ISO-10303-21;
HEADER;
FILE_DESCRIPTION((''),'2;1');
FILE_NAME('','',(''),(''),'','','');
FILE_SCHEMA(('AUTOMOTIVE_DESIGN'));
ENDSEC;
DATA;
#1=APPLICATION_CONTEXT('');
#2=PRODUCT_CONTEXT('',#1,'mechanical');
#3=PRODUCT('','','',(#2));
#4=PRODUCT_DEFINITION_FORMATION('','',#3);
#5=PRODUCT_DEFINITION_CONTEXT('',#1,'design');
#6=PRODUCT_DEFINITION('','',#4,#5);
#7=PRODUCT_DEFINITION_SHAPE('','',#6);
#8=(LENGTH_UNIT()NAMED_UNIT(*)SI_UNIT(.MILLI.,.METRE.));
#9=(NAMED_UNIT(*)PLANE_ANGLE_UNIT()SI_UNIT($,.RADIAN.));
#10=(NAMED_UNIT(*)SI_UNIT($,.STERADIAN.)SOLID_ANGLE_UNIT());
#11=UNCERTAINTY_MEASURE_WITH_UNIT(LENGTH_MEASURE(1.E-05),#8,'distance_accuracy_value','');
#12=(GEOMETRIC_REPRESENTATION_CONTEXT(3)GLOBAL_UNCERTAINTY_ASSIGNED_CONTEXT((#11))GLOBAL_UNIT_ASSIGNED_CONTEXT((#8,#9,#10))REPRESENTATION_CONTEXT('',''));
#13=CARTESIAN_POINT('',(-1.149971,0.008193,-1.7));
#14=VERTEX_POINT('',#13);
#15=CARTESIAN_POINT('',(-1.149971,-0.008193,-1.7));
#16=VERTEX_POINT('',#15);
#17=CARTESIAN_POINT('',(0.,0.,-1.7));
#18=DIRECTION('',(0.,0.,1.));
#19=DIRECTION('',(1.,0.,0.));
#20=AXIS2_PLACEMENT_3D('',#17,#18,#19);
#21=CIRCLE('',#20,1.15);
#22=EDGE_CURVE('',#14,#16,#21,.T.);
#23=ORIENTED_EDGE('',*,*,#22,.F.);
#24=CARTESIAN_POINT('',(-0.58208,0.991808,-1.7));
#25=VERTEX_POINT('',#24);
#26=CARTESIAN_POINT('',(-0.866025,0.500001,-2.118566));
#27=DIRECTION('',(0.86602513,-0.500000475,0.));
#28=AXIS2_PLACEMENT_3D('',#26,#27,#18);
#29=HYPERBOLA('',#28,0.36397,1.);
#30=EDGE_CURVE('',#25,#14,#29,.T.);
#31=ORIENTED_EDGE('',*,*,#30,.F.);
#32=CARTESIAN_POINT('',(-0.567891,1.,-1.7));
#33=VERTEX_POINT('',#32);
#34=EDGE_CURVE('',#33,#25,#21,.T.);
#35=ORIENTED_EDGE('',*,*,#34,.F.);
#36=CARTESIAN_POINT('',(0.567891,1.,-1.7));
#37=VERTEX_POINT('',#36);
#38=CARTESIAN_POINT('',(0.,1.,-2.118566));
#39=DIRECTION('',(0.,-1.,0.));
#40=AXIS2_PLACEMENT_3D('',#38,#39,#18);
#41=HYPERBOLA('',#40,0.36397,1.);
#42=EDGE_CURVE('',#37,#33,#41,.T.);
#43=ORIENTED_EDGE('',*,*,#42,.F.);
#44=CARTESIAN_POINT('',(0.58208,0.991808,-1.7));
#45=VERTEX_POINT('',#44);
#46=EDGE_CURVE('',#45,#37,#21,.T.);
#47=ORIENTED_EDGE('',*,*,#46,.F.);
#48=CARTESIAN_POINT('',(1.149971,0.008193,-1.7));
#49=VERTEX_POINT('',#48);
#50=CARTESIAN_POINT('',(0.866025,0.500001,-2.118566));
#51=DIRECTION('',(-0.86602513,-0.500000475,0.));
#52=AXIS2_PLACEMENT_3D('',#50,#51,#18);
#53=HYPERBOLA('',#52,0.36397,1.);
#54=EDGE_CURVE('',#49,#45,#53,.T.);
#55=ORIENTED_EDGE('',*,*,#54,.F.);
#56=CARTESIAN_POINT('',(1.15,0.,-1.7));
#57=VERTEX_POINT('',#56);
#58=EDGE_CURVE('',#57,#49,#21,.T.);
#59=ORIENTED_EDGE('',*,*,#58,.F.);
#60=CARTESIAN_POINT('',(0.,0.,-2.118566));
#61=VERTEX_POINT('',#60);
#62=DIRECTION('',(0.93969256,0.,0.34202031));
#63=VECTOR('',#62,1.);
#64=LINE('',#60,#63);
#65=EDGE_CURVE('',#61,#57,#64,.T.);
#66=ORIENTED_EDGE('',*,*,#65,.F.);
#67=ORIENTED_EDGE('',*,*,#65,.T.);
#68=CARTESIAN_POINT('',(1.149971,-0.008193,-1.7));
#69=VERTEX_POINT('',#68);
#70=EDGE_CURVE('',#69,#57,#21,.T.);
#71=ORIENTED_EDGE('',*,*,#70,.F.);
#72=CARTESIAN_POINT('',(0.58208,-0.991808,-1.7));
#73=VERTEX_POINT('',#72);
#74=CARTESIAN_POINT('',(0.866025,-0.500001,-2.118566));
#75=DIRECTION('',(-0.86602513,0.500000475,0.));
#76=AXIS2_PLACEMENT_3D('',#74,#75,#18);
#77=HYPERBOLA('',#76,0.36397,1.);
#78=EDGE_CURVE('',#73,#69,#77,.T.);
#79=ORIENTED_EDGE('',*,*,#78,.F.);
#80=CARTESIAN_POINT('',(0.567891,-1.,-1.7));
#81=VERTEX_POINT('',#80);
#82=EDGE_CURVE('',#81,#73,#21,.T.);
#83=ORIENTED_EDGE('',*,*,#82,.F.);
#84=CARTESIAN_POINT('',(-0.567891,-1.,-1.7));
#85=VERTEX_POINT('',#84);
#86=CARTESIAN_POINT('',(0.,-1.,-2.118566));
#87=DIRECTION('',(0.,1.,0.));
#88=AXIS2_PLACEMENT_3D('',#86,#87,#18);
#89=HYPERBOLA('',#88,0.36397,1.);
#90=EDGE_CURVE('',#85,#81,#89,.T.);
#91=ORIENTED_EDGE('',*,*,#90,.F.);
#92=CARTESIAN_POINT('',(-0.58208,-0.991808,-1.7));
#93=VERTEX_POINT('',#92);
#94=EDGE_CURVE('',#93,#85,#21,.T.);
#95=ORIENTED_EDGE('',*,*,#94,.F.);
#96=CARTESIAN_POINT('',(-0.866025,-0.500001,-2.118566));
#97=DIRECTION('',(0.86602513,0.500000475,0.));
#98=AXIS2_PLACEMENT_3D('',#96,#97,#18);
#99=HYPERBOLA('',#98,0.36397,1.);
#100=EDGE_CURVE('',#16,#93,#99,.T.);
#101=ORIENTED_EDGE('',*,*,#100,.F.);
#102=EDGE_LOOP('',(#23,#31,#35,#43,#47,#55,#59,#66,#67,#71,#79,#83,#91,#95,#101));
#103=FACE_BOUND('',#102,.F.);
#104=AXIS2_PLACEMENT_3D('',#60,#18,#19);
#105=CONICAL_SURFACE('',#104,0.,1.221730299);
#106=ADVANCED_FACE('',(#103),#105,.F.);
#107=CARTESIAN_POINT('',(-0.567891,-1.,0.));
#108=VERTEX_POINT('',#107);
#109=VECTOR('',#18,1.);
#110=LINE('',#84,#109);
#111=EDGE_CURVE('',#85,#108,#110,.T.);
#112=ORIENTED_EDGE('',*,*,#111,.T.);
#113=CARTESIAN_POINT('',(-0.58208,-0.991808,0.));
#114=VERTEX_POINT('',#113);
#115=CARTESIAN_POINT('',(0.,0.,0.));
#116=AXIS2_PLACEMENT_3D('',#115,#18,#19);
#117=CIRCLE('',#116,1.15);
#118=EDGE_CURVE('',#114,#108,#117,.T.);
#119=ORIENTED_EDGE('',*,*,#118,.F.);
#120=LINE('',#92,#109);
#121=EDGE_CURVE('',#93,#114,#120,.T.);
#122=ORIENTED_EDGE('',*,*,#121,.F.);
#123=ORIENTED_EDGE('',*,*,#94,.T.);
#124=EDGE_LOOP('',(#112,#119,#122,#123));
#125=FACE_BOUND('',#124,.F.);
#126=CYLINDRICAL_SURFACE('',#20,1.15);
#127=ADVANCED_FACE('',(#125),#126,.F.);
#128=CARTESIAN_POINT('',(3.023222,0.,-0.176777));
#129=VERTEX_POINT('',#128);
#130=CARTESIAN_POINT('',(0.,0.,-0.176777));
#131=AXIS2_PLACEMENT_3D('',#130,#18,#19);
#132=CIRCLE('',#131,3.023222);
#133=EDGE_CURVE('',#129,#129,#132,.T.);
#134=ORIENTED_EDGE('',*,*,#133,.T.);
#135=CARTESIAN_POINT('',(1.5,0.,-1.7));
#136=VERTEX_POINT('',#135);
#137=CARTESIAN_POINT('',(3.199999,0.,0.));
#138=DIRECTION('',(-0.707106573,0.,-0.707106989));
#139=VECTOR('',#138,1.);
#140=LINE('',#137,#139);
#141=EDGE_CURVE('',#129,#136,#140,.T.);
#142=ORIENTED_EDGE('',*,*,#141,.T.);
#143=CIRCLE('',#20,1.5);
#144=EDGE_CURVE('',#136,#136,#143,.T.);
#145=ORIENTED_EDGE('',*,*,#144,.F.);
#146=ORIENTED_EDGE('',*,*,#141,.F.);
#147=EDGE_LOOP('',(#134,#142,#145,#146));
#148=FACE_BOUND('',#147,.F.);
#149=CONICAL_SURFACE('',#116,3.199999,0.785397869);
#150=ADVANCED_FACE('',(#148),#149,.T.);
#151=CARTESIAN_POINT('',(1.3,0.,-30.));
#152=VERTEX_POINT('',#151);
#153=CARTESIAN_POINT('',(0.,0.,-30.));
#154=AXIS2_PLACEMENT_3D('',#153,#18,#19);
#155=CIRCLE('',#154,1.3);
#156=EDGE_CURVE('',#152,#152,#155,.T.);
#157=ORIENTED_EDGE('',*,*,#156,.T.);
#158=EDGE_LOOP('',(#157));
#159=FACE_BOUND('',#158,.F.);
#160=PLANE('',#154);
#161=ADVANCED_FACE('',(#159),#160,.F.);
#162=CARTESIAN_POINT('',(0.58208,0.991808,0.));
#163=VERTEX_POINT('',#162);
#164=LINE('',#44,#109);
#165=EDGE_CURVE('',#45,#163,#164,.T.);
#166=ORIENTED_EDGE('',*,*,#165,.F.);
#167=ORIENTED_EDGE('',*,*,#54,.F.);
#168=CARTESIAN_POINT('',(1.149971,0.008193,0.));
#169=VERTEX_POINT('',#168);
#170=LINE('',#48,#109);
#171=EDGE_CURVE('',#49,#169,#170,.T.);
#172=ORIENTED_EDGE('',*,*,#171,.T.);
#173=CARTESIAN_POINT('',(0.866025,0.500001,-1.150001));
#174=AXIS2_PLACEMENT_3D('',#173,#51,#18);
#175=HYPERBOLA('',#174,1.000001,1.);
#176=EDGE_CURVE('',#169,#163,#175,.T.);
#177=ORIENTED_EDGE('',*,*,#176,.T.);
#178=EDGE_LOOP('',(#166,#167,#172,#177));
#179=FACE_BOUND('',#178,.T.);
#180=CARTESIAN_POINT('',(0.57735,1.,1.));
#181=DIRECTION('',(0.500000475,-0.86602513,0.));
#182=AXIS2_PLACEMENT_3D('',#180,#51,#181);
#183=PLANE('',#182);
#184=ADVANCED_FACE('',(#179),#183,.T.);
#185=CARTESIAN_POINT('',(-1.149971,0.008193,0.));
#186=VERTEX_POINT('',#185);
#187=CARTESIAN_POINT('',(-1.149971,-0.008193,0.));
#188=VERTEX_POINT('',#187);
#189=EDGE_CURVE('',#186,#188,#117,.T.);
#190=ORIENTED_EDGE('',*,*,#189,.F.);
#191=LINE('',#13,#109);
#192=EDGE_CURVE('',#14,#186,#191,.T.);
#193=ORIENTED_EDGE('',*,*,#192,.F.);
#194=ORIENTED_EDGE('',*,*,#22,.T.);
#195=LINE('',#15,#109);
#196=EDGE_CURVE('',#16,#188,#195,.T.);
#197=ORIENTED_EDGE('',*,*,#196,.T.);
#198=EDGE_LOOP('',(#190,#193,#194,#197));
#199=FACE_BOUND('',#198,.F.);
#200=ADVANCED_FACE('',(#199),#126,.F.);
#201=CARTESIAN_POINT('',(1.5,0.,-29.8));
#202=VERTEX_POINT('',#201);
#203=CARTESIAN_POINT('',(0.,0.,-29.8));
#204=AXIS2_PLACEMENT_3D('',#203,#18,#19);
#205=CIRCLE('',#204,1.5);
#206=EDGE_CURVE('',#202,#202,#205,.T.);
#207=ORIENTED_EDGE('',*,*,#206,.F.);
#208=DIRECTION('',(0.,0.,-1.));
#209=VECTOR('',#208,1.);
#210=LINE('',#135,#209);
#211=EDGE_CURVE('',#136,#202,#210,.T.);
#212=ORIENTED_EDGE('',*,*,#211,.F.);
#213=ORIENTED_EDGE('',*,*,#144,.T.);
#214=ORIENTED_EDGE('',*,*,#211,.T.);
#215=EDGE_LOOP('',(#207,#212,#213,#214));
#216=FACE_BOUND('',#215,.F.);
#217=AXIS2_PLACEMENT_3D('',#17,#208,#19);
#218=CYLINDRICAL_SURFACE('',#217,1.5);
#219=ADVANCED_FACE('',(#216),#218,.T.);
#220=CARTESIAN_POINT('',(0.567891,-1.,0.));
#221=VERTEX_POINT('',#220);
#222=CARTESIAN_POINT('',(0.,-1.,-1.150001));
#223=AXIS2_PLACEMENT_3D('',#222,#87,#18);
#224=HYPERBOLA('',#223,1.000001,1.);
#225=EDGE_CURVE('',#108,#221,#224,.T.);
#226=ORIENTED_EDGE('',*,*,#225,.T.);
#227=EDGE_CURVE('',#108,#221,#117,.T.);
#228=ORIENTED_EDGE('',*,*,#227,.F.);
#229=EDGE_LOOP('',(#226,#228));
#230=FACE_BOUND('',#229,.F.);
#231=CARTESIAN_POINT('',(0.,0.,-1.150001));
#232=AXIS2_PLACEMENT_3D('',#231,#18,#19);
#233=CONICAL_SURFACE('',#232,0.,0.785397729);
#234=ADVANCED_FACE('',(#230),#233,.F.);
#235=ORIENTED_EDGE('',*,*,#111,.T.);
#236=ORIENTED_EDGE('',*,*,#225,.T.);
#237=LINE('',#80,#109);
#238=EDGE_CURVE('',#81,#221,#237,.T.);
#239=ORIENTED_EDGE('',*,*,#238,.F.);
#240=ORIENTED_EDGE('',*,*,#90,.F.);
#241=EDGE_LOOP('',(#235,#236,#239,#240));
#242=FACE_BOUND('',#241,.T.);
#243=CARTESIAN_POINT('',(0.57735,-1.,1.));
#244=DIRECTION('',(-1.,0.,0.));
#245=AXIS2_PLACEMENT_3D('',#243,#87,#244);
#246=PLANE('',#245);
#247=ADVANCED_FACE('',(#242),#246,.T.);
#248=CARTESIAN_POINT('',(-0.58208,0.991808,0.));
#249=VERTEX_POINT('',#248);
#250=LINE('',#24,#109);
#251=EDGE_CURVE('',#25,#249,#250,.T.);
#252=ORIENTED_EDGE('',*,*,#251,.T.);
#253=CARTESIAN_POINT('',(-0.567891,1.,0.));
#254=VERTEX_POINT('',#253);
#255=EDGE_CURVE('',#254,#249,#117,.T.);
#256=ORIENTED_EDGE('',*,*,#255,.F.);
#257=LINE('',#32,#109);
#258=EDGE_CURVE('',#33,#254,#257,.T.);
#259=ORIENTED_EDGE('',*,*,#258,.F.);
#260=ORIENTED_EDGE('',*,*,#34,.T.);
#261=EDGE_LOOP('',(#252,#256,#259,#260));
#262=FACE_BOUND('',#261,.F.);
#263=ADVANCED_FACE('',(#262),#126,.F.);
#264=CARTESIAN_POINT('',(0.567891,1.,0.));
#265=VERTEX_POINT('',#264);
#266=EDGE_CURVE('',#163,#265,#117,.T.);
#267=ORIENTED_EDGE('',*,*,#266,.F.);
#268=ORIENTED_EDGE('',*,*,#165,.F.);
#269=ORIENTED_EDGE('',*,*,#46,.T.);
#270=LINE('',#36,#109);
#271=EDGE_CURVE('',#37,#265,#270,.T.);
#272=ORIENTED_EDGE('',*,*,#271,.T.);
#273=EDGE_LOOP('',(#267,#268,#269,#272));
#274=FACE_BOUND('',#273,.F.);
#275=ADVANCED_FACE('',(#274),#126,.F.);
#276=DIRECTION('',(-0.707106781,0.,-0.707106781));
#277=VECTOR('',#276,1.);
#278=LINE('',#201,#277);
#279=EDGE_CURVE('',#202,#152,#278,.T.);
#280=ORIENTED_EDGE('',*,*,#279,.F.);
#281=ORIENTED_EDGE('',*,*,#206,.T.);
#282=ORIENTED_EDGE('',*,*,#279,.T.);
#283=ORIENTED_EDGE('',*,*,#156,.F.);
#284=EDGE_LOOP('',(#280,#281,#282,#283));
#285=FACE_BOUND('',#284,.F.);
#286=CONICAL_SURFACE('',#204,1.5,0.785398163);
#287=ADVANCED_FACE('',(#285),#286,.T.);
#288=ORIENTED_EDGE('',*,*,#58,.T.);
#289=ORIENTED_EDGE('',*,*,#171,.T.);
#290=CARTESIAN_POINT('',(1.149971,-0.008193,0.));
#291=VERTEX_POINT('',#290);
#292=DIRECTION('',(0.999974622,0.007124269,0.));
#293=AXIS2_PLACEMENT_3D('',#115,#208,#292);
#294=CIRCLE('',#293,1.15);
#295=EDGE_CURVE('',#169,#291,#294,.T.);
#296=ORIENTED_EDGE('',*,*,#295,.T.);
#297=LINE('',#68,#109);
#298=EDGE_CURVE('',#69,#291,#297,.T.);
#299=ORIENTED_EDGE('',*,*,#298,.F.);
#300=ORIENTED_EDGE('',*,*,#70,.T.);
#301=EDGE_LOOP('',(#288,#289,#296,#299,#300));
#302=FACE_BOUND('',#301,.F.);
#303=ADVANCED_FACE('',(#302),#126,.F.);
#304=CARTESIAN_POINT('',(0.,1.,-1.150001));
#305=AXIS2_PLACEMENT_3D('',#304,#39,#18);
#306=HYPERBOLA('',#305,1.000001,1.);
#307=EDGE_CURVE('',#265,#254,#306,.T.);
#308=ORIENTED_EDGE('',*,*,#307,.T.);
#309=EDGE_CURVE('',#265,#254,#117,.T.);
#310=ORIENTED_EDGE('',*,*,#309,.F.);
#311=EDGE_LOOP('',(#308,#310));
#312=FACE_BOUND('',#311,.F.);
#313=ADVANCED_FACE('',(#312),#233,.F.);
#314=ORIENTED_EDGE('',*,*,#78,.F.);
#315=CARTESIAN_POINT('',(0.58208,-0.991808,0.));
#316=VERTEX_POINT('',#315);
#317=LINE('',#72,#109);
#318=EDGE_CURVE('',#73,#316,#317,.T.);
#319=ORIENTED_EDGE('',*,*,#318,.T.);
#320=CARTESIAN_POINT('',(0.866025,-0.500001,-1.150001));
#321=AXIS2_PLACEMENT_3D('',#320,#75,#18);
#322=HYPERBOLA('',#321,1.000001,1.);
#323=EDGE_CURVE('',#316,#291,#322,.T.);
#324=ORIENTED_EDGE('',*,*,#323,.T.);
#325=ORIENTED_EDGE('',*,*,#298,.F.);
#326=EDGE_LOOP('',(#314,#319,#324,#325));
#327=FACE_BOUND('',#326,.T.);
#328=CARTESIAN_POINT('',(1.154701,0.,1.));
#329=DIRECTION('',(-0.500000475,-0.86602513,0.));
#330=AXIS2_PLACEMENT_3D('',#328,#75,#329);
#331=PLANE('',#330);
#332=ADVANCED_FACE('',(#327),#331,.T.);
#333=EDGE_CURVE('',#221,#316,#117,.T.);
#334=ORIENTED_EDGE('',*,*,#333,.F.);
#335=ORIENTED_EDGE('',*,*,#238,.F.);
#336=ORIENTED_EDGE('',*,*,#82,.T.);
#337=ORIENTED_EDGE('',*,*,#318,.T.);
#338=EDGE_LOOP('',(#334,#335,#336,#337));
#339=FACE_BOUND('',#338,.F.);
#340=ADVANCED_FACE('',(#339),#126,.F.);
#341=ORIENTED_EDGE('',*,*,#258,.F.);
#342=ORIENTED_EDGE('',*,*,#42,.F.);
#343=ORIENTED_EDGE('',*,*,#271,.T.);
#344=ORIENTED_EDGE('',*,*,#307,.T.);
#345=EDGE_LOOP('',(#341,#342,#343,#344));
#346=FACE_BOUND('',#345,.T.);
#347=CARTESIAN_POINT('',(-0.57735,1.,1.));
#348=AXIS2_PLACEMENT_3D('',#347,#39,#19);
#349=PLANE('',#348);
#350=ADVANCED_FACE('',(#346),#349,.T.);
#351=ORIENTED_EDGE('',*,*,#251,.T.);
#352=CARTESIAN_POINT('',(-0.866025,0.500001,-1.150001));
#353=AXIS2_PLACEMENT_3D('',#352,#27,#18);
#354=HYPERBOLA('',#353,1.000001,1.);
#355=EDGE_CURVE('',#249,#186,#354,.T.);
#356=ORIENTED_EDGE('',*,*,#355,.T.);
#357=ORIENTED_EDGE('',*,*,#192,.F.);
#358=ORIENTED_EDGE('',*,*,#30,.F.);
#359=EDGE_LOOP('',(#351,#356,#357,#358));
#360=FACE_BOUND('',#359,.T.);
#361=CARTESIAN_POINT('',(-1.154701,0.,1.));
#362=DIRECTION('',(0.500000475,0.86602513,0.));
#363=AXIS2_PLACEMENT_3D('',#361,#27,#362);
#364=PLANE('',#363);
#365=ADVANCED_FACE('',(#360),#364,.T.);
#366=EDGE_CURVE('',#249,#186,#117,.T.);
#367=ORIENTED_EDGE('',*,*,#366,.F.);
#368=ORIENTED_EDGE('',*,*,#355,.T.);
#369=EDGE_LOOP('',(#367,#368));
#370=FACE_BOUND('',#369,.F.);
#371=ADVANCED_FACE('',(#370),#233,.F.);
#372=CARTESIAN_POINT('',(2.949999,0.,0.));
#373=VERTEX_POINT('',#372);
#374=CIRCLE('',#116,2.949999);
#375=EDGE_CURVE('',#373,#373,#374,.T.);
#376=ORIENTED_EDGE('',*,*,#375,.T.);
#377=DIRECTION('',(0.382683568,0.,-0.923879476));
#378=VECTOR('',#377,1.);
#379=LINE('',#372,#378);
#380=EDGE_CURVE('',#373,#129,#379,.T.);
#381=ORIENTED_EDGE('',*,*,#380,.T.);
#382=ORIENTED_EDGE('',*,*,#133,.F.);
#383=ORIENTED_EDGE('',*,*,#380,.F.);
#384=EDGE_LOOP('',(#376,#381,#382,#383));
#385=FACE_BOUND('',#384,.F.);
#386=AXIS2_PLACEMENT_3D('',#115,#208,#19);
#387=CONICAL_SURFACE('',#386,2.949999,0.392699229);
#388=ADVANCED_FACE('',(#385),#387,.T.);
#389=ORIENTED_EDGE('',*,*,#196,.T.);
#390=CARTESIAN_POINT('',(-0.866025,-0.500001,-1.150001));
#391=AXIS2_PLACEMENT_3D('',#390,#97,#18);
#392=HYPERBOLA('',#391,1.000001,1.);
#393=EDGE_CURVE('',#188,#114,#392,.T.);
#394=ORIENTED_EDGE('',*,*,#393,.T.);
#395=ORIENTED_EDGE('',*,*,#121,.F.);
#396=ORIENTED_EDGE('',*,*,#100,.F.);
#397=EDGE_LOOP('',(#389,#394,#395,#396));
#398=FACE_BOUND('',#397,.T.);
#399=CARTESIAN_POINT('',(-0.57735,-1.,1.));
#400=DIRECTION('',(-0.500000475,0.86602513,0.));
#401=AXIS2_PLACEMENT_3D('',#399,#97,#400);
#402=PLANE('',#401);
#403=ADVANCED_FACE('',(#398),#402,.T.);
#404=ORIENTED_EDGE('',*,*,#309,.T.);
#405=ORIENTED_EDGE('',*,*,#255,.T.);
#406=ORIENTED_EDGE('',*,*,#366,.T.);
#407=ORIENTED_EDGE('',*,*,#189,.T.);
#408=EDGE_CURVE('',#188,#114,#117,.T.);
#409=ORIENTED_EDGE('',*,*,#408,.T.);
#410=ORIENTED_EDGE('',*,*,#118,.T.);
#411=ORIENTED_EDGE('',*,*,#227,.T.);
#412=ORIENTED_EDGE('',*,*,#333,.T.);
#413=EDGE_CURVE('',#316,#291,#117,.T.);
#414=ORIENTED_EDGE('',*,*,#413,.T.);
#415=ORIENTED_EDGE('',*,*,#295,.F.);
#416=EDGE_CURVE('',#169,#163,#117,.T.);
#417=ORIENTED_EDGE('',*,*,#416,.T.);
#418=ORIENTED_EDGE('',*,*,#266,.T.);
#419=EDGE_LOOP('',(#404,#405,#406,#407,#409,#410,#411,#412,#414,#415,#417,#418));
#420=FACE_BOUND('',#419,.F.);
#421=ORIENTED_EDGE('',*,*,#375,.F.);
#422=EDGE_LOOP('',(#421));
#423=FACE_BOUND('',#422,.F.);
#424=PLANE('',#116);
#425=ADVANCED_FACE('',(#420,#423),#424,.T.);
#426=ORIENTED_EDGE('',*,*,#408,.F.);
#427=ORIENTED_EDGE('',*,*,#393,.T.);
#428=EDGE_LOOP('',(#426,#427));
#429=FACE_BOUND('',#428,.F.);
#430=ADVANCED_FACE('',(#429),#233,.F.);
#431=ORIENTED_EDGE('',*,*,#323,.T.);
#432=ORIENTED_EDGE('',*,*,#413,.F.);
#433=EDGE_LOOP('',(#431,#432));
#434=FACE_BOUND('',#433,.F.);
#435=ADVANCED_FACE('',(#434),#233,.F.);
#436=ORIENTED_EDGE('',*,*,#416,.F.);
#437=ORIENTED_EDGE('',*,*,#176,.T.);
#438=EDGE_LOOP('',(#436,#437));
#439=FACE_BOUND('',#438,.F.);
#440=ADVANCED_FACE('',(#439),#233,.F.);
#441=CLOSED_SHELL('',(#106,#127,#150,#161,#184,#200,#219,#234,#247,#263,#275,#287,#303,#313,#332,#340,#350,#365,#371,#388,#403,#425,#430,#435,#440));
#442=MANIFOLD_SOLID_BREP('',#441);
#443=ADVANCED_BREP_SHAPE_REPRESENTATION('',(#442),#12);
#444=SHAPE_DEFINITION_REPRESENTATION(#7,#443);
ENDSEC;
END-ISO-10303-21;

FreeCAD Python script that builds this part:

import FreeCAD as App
import Part
import Sketcher
from FreeCAD import Vector
Q = App.Units.Quantity


def edges_at(feature, points):
    """Names of the edges that pass closest to the given points."""
    edges = feature.Shape.Edges
    near = lambda p: min(range(len(edges)), key=lambda i: edges[i].distToShape(Part.Vertex(*p))[0])
    return sorted({f"Edge{near(p) + 1}" for p in points})


def add_polygon(sketch, points):
    """Adds a closed chain of lines whose ends are joined by coincident constraints."""
    first, n = sketch.GeometryCount, len(points)
    for a, b in zip(points, points[1:] + points[:1]):
        sketch.addGeometry(Part.LineSegment(App.Vector(*a, 0), App.Vector(*b, 0)), False)
    for i in range(n):
        sketch.addConstraint(Sketcher.Constraint("Coincident", first + i, 2, first + (i + 1) % n, 1))

doc = App.newDocument("Part")
body = doc.addObject("PartDesign::Body", "Body")

# Sketch on XZ plane
sketch1 = body.newObject("Sketcher::SketchObject", "Sketch")
sketch1.AttachmentSupport = (doc.getObject("XZ_Plane"), [""])
sketch1.MapMode = "FlatFace"
add_polygon(sketch1, [(0, -2.1), (1.1, -1.7), (1.1, 1), (0, 1)])  # lines 0-3
sketch1.addConstraint([
    Sketcher.Constraint("Vertical", 1),
    Sketcher.Constraint("Horizontal", 2),
    Sketcher.Constraint("Vertical", 3),
    Sketcher.Constraint("PointOnObject", 2, 2, -2),
    Sketcher.Constraint("Angle", 0, Q("20.00001 deg")),
    Sketcher.Constraint("DistanceY", 1, 1, 1, 2, Q("2.7 mm")),
    Sketcher.Constraint("DistanceY", -1, 1, 1, 2, Q("1 mm")),
    Sketcher.Constraint("DistanceX", 2, 2, 2, 1, Q("1.15 mm")),
])
revolution = body.newObject("PartDesign::Revolution", "Revolution")
revolution.Profile = sketch1
revolution.ReferenceAxis = (sketch1, ["V_Axis"])
revolution.Angle = 360

# Sketch on XY plane
sketch2 = body.newObject("Sketcher::SketchObject", "Sketch001")
sketch2.AttachmentSupport = (doc.getObject("XY_Plane"), [""])
sketch2.MapMode = "FlatFace"
sketch2.AttachmentOffset = App.Placement(Vector(0, 0, 1), App.Rotation())
sketch2.addGeometry(Part.Circle(Vector(0, 0, 0), Vector(0, 0, 1), 2.1), False)  # 0
add_polygon(sketch2, [(1.2, 0), (0.6, -1), (-0.6, -1), (-1.2, 0), (-0.6, 1), (0.6, 1)])  # lines 1-6
sketch2.addConstraint([
    Sketcher.Constraint("Horizontal", 2),
    Sketcher.Constraint("Horizontal", 5),
    Sketcher.Constraint("Coincident", 0, 3, -1, 1),
    Sketcher.Constraint("Symmetric", 1, 2, 4, 2, -1, 1),
    Sketcher.Constraint("Symmetric", 3, 2, 6, 2, -1, 1),
    Sketcher.Constraint("PointOnObject", 3, 2, -1),
    Sketcher.Constraint("Parallel", 3, 6),
    Sketcher.Constraint("Vertical", 2, 2, 4, 2),
    Sketcher.Constraint("Diameter", 0, Q("4.3 mm")),
    Sketcher.Constraint("DistanceY", 1, 2, -1, 1, Q("1 mm")),
    Sketcher.Constraint("DistanceX", 2, 2, 2, 1, Q("1.1547 mm")),
    Sketcher.Constraint("Distance", 1, Q("1.154701 mm")),
])
pocket1 = body.newObject("PartDesign::Pocket", "Pocket")
pocket1.Profile = sketch2
pocket1.Type = "ThroughAll"
body2 = doc.addObject("PartDesign::Body", "Body001")

# Sketch on XZ plane
sketch3 = body2.newObject("Sketcher::SketchObject", "Sketch002")
sketch3.AttachmentSupport = (doc.getObject("XZ_Plane001"), [""])
sketch3.MapMode = "FlatFace"
add_polygon(sketch3, [(3.2, 0), (1.1, 0), (0, -1.2), (0, -30), (1.5, -30), (1.5, -1.7)])  # lines 0-5
sketch3.addConstraint([
    Sketcher.Constraint("Horizontal", 0),
    Sketcher.Constraint("Vertical", 2),
    Sketcher.Constraint("Horizontal", 3),
    Sketcher.Constraint("Vertical", 4),
    Sketcher.Constraint("PointOnObject", 0, 2, -1),
    Sketcher.Constraint("PointOnObject", 1, 2, -2),
    Sketcher.Constraint("Parallel", 1, 5),
    Sketcher.Constraint("Angle", 5, Q("45.000017 deg")),
    Sketcher.Constraint("DistanceX", 3, 1, 3, 2, Q("1.5 mm")),
    Sketcher.Constraint("DistanceY", 4, 1, 4, 2, Q("28.3 mm")),
    Sketcher.Constraint("DistanceY", 2, 2, -1, 1, Q("30 mm")),
    Sketcher.Constraint("DistanceX", 0, 2, 0, 1, Q("2.049999 mm")),
])
revolution2 = body2.newObject("PartDesign::Revolution", "Revolution001")
revolution2.Profile = sketch3
revolution2.ReferenceAxis = (sketch3, ["V_Axis"])
revolution2.Angle = 360
doc.recompute()

boolean = body2.newObject("PartDesign::Boolean", "Boolean")
boolean.Type = "Cut"
boolean.addObjects([body])
doc.recompute()

chamfer = body2.newObject("PartDesign::Chamfer", "Chamfer")
chamfer.Base = (boolean, edges_at(boolean, [(-3.2, 0, 0)]))
chamfer.Size = 0.25
doc.recompute()

chamfer2 = body2.newObject("PartDesign::Chamfer", "Chamfer001")
chamfer2.Base = (chamfer, edges_at(chamfer, [(-1.5, 0, -30)]))
chamfer2.Size = 0.2

doc.recompute()
